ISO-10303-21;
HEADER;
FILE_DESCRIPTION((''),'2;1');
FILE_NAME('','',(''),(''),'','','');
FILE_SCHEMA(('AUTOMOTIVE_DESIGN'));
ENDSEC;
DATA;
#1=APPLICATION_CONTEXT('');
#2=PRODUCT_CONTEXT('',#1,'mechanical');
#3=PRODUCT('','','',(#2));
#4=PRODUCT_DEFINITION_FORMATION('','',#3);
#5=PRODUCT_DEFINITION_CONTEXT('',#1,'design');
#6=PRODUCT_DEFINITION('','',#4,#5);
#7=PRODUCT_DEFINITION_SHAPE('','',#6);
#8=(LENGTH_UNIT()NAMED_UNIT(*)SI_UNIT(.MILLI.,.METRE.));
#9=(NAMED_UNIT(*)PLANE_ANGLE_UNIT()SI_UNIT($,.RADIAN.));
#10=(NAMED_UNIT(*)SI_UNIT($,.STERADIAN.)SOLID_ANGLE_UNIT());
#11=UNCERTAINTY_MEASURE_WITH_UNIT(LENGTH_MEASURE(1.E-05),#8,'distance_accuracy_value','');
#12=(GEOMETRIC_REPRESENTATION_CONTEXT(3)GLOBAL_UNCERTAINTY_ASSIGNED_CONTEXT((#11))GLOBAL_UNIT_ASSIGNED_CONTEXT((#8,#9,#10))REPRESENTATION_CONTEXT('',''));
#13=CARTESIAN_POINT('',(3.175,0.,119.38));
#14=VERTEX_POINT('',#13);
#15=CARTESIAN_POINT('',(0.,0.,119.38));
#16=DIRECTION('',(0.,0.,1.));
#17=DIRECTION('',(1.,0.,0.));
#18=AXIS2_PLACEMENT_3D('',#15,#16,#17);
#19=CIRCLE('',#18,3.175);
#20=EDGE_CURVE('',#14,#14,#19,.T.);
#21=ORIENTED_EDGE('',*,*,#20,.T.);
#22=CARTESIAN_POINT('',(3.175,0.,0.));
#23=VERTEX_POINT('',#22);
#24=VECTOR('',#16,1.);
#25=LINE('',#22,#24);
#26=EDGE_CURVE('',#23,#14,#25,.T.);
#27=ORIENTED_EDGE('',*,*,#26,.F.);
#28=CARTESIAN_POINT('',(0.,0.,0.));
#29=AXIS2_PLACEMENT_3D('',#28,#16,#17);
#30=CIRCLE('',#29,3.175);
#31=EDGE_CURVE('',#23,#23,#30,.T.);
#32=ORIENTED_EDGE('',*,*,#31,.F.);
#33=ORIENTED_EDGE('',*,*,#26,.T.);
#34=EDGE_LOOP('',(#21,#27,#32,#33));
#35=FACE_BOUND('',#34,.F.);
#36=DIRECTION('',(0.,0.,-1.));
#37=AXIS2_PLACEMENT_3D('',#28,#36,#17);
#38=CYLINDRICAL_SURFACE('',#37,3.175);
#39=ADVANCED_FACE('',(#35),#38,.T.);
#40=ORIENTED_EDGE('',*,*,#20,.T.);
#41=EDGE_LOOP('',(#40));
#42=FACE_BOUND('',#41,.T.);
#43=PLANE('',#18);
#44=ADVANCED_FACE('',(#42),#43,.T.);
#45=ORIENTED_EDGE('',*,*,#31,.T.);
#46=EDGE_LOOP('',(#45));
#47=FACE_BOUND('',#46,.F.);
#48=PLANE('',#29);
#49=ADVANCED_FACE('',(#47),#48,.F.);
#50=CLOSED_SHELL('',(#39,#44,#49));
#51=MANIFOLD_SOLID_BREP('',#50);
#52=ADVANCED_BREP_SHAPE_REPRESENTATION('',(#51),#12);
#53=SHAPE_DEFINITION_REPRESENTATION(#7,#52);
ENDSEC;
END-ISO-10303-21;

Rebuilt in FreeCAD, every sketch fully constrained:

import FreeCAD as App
import Part
import Sketcher
from FreeCAD import Vector
Q = App.Units.Quantity

doc = App.newDocument("Part")
params = doc.addObject("Spreadsheet::Sheet", "Params")
for row, (alias, value) in enumerate([
    ("sketch1_diameter", "0.25 in"),
    ("pad1_length", "4.7 in"),
], start=1):
    params.set(f"A{row}", alias)
    params.set(f"B{row}", "=" + value)
    params.setAlias(f"B{row}", alias)

body = doc.addObject("PartDesign::Body", "Body")

sketch1 = body.newObject("Sketcher::SketchObject", "Sketch")
sketch1.AttachmentSupport = (doc.getObject("XY_Plane"), [""])
sketch1.MapMode = "FlatFace"
sketch1.addGeometry(Part.Circle(Vector(0, 0, 0), Vector(0, 0, 1), 3.2), False)
sketch1.addConstraint([
    Sketcher.Constraint("Coincident", 0, 3, -1, 1),
    Sketcher.Constraint("Diameter", 0, Q("0.25 in")),
])
sketch1.setExpression("Constraints[1]", "Params.sketch1_diameter")
pad1 = body.newObject("PartDesign::Pad", "Pad")
pad1.Profile = sketch1
pad1.setExpression("Length", "Params.pad1_length")

doc.recompute()
